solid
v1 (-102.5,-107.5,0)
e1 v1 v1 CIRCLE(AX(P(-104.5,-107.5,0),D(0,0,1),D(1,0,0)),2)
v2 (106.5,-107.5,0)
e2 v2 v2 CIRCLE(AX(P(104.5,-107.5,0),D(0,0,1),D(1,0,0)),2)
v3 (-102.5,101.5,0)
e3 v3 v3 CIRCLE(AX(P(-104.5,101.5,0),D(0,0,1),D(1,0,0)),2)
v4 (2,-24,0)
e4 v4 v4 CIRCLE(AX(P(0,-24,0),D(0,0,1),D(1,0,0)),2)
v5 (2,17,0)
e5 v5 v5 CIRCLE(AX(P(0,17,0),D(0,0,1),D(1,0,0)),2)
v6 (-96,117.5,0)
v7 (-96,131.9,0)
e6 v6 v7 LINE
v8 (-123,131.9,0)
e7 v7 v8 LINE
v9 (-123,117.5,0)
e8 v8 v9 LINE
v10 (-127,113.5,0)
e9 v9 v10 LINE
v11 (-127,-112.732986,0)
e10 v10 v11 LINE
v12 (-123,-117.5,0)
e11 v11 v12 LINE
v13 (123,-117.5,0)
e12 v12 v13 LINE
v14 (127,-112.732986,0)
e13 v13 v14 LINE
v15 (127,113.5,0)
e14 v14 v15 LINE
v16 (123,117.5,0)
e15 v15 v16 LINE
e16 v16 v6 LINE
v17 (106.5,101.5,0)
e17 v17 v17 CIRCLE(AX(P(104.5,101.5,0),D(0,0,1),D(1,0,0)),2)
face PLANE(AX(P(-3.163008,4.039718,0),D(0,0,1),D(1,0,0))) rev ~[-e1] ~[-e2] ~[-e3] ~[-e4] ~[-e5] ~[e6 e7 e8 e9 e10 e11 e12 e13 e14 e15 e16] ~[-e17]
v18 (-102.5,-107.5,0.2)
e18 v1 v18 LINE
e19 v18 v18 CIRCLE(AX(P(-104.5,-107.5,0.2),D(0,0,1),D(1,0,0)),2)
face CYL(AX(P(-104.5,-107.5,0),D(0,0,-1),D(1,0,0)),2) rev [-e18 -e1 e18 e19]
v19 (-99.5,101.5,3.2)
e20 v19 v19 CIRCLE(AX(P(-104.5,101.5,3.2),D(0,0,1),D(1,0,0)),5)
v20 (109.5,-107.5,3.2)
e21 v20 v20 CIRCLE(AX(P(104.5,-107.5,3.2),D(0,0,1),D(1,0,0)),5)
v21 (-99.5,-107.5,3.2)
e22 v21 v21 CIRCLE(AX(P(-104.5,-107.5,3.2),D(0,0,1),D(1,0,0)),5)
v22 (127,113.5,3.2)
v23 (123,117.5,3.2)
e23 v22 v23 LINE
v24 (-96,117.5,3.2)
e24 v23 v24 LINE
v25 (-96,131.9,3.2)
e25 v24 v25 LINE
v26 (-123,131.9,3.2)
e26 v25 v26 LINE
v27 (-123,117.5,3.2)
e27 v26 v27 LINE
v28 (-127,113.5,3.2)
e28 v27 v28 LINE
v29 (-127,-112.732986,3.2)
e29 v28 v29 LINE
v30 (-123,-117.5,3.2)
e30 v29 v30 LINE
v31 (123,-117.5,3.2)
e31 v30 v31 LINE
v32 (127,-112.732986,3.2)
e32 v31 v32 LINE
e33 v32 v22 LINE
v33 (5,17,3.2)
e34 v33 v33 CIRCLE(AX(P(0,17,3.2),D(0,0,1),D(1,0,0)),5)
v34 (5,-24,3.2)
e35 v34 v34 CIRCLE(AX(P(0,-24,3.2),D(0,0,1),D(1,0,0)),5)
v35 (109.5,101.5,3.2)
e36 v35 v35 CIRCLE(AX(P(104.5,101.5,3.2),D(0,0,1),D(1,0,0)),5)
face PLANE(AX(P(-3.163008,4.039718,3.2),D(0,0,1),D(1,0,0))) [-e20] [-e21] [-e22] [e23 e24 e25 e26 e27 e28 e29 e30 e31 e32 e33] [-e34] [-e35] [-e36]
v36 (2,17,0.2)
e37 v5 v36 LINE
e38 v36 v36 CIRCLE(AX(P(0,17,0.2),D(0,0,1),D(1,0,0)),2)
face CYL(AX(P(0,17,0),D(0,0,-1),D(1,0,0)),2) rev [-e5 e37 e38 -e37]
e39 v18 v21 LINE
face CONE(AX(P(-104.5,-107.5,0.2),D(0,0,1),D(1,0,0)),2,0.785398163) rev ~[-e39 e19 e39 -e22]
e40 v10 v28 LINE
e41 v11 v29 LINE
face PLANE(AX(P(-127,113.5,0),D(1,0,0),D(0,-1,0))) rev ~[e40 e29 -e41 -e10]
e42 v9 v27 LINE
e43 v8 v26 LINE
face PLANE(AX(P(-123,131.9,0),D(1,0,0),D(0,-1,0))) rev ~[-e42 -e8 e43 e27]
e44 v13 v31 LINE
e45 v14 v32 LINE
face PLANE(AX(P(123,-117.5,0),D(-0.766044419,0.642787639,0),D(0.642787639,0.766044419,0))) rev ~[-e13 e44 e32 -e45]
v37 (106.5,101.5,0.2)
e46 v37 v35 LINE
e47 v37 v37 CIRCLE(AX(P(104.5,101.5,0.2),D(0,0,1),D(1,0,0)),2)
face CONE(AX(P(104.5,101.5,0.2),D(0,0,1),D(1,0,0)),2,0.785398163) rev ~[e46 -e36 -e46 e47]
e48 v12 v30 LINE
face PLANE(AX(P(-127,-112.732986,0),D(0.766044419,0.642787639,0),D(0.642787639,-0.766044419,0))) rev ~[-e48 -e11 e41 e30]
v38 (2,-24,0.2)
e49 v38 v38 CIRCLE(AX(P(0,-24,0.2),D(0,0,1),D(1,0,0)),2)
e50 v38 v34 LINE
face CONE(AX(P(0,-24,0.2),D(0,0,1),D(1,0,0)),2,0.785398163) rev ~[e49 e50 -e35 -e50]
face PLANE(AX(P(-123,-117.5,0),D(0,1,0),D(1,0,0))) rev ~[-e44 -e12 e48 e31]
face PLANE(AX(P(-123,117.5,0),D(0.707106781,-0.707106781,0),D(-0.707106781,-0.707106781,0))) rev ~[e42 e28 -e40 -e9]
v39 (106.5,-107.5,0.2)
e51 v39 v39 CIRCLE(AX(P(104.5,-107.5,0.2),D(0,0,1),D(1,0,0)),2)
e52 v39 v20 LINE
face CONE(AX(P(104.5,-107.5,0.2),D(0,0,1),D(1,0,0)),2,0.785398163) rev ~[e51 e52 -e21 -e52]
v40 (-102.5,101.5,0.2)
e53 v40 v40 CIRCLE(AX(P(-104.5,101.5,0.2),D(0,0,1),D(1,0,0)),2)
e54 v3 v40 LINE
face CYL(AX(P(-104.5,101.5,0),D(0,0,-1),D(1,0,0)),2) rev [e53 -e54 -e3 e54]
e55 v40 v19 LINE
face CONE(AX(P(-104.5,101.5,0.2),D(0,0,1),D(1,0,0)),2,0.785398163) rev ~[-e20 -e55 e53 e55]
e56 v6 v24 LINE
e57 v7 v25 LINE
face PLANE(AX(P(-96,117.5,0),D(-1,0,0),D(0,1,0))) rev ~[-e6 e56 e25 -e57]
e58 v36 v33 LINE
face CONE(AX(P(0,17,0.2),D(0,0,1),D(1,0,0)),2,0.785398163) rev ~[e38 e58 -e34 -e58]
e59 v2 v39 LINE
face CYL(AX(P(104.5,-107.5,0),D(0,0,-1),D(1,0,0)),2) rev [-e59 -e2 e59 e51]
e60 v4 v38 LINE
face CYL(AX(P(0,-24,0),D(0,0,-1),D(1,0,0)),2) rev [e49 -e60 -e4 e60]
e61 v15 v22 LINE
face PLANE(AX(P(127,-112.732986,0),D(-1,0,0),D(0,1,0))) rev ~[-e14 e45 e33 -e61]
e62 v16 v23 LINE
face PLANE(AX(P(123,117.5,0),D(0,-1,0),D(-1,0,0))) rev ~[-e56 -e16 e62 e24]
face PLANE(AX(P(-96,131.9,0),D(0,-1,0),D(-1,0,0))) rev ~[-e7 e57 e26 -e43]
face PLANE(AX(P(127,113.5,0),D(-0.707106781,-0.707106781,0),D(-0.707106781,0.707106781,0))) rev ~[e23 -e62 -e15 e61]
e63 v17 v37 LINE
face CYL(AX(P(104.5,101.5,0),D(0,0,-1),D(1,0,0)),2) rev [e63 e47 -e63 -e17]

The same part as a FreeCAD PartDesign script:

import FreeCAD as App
import Part
import Sketcher

V = App.Vector
Q = App.Units.Quantity


def edges_at(feature, points):
    """Names of the edges that pass closest to the given points."""
    edges = feature.Shape.Edges
    near = lambda p: min(range(len(edges)), key=lambda i: edges[i].distToShape(Part.Vertex(*p))[0])
    return sorted({f"Edge{near(p) + 1}" for p in points})

doc = App.newDocument("Part")
params = doc.addObject("Spreadsheet::Sheet", "Params")
for row, (alias, value) in enumerate([
    ("sketch1_diameter", "4 mm"),
    ("sketch1_width", "27 mm"),
    ("sketch1_width2", "246 mm"),
    ("sketch1_height", "14.4 mm"),
    ("pad1_length", "3.2 mm"),
    ("chamfer_size", "3 mm"),
], start=1):
    params.set(f"A{row}", alias)
    params.set(f"B{row}", "=" + value)
    params.setAlias(f"B{row}", alias)

body = doc.addObject("PartDesign::Body", "Body")

# Sketch on XY plane
sketch1 = doc.addObject("Sketcher::SketchObject", "Sketch")
body.addObject(sketch1)
sketch1.AttachmentSupport = (doc.XY_Plane, [""])
sketch1.MapMode = "FlatFace"
sketch1.addGeometry([
    Part.LineSegment(V(-96, 131.9, 0), V(-123, 131.9, 0)),  # 0
    Part.LineSegment(V(-123, 131.9, 0), V(-123, 117.5, 0)),  # 1
    Part.LineSegment(V(-123, 117.5, 0), V(-127, 113.5, 0)),  # 2
    Part.LineSegment(V(-127, 113.5, 0), V(-127, -112.7, 0)),  # 3
    Part.LineSegment(V(-127, -112.7, 0), V(-123, -117.5, 0)),  # 4
    Part.LineSegment(V(-123, -117.5, 0), V(123, -117.5, 0)),  # 5
    Part.LineSegment(V(123, -117.5, 0), V(127, -112.7, 0)),  # 6
    Part.LineSegment(V(127, -112.7, 0), V(127, 113.5, 0)),  # 7
    Part.LineSegment(V(127, 113.5, 0), V(123, 117.5, 0)),  # 8
    Part.LineSegment(V(123, 117.5, 0), V(-96, 117.5, 0)),  # 9
    Part.LineSegment(V(-96, 117.5, 0), V(-96, 131.9, 0)),  # 10
    Part.Circle(V(-104.5, -107.5, 0), V(0, 0, 1), 2),  # 11
    Part.Circle(V(104.5, -107.5, 0), V(0, 0, 1), 2),  # 12
    Part.Circle(V(0, -24, 0), V(0, 0, 1), 2),  # 13
    Part.Circle(V(-104.5, 101.5, 0), V(0, 0, 1), 2),  # 14
    Part.Circle(V(0, 17, 0), V(0, 0, 1), 2),  # 15
    Part.Circle(V(104.5, 101.5, 0), V(0, 0, 1), 2),  # 16
], False)
sketch1.addConstraint([
    Sketcher.Constraint("Coincident", 0, 2, 1, 1),
    Sketcher.Constraint("Coincident", 1, 2, 2, 1),
    Sketcher.Constraint("Coincident", 2, 2, 3, 1),
    Sketcher.Constraint("Coincident", 3, 2, 4, 1),
    Sketcher.Constraint("Coincident", 4, 2, 5, 1),
    Sketcher.Constraint("Coincident", 5, 2, 6, 1),
    Sketcher.Constraint("Coincident", 6, 2, 7, 1),
    Sketcher.Constraint("Coincident", 7, 2, 8, 1),
    Sketcher.Constraint("Coincident", 8, 2, 9, 1),
    Sketcher.Constraint("Coincident", 9, 2, 10, 1),
    Sketcher.Constraint("Coincident", 10, 2, 0, 1),
    Sketcher.Constraint("Horizontal", 0),
    Sketcher.Constraint("Vertical", 1),
    Sketcher.Constraint("Vertical", 3),
    Sketcher.Constraint("Horizontal", 5),
    Sketcher.Constraint("Vertical", 7),
    Sketcher.Constraint("Horizontal", 9),
    Sketcher.Constraint("Vertical", 10),
    Sketcher.Constraint("Equal", 11, 12),
    Sketcher.Constraint("Equal", 12, 13),
    Sketcher.Constraint("Equal", 13, 14),
    Sketcher.Constraint("Equal", 14, 15),
    Sketcher.Constraint("Equal", 15, 16),
    Sketcher.Constraint("Symmetric", 1, 2, 5, 2, -1, 1),
    Sketcher.Constraint("Symmetric", 4, 2, 8, 2, -1, 1),
    Sketcher.Constraint("Symmetric", 11, 3, 12, 3, -2),
    Sketcher.Constraint("Symmetric", 14, 3, 16, 3, -2),
    Sketcher.Constraint("Symmetric", 3, 2, 6, 2, -2),
    Sketcher.Constraint("PointOnObject", 13, 3, -2),
    Sketcher.Constraint("PointOnObject", 15, 3, -2),
    Sketcher.Constraint("Perpendicular", 2, 8),
    Sketcher.Constraint("Horizontal", 2, 2, 7, 2),
    Sketcher.Constraint("Vertical", 11, 3, 14, 3),
    Sketcher.Constraint("Vertical", 1, 2, 4, 2),
    Sketcher.Constraint("Diameter", 11, Q("4 mm")),
    Sketcher.Constraint("DistanceX", 0, 2, 0, 1, Q("27 mm")),
    Sketcher.Constraint("DistanceX", 5, 1, 5, 2, Q("246 mm")),
    Sketcher.Constraint("Angle", 4, Q("-49.999998 deg")),
    Sketcher.Constraint("DistanceY", 1, 2, 1, 1, Q("14.4 mm")),
    Sketcher.Constraint("DistanceY", 13, 3, -1, 1, Q("24 mm")),
    Sketcher.Constraint("DistanceY", -1, 1, 15, 3, Q("17 mm")),
    Sketcher.Constraint("DistanceX", 2, 2, -1, 1, Q("127 mm")),
    Sketcher.Constraint("DistanceX", 11, 3, 12, 3, Q("209 mm")),
    Sketcher.Constraint("DistanceY", 11, 3, 14, 3, Q("209 mm")),
    Sketcher.Constraint("DistanceY", 14, 3, 1, 2, Q("16 mm")),
    Sketcher.Constraint("DistanceY", 4, 2, 11, 3, Q("10 mm")),
])
sketch1.setExpression("Constraints[34]", "Params.sketch1_diameter")
sketch1.setExpression("Constraints[35]", "Params.sketch1_width")
sketch1.setExpression("Constraints[36]", "Params.sketch1_width2")
sketch1.setExpression("Constraints[38]", "Params.sketch1_height")
pad1 = doc.addObject("PartDesign::Pad", "Pad")
body.addObject(pad1)
pad1.Profile = sketch1
pad1.setExpression("Length", "Params.pad1_length")
doc.recompute()

chamfer = doc.addObject("PartDesign::Chamfer", "Chamfer")
body.addObject(chamfer)
chamfer.Base = (pad1, edges_at(pad1, [
    (-106.5, 101.5, 3.2),
    (-2, 17, 3.2),
    (-2, -24, 3.2),
    (102.5, 101.5, 3.2),
    (102.5, -107.5, 3.2),
    (-106.5, -107.5, 3.2),
]))
chamfer.setExpression("Size", "Params.chamfer_size")

doc.recompute()
